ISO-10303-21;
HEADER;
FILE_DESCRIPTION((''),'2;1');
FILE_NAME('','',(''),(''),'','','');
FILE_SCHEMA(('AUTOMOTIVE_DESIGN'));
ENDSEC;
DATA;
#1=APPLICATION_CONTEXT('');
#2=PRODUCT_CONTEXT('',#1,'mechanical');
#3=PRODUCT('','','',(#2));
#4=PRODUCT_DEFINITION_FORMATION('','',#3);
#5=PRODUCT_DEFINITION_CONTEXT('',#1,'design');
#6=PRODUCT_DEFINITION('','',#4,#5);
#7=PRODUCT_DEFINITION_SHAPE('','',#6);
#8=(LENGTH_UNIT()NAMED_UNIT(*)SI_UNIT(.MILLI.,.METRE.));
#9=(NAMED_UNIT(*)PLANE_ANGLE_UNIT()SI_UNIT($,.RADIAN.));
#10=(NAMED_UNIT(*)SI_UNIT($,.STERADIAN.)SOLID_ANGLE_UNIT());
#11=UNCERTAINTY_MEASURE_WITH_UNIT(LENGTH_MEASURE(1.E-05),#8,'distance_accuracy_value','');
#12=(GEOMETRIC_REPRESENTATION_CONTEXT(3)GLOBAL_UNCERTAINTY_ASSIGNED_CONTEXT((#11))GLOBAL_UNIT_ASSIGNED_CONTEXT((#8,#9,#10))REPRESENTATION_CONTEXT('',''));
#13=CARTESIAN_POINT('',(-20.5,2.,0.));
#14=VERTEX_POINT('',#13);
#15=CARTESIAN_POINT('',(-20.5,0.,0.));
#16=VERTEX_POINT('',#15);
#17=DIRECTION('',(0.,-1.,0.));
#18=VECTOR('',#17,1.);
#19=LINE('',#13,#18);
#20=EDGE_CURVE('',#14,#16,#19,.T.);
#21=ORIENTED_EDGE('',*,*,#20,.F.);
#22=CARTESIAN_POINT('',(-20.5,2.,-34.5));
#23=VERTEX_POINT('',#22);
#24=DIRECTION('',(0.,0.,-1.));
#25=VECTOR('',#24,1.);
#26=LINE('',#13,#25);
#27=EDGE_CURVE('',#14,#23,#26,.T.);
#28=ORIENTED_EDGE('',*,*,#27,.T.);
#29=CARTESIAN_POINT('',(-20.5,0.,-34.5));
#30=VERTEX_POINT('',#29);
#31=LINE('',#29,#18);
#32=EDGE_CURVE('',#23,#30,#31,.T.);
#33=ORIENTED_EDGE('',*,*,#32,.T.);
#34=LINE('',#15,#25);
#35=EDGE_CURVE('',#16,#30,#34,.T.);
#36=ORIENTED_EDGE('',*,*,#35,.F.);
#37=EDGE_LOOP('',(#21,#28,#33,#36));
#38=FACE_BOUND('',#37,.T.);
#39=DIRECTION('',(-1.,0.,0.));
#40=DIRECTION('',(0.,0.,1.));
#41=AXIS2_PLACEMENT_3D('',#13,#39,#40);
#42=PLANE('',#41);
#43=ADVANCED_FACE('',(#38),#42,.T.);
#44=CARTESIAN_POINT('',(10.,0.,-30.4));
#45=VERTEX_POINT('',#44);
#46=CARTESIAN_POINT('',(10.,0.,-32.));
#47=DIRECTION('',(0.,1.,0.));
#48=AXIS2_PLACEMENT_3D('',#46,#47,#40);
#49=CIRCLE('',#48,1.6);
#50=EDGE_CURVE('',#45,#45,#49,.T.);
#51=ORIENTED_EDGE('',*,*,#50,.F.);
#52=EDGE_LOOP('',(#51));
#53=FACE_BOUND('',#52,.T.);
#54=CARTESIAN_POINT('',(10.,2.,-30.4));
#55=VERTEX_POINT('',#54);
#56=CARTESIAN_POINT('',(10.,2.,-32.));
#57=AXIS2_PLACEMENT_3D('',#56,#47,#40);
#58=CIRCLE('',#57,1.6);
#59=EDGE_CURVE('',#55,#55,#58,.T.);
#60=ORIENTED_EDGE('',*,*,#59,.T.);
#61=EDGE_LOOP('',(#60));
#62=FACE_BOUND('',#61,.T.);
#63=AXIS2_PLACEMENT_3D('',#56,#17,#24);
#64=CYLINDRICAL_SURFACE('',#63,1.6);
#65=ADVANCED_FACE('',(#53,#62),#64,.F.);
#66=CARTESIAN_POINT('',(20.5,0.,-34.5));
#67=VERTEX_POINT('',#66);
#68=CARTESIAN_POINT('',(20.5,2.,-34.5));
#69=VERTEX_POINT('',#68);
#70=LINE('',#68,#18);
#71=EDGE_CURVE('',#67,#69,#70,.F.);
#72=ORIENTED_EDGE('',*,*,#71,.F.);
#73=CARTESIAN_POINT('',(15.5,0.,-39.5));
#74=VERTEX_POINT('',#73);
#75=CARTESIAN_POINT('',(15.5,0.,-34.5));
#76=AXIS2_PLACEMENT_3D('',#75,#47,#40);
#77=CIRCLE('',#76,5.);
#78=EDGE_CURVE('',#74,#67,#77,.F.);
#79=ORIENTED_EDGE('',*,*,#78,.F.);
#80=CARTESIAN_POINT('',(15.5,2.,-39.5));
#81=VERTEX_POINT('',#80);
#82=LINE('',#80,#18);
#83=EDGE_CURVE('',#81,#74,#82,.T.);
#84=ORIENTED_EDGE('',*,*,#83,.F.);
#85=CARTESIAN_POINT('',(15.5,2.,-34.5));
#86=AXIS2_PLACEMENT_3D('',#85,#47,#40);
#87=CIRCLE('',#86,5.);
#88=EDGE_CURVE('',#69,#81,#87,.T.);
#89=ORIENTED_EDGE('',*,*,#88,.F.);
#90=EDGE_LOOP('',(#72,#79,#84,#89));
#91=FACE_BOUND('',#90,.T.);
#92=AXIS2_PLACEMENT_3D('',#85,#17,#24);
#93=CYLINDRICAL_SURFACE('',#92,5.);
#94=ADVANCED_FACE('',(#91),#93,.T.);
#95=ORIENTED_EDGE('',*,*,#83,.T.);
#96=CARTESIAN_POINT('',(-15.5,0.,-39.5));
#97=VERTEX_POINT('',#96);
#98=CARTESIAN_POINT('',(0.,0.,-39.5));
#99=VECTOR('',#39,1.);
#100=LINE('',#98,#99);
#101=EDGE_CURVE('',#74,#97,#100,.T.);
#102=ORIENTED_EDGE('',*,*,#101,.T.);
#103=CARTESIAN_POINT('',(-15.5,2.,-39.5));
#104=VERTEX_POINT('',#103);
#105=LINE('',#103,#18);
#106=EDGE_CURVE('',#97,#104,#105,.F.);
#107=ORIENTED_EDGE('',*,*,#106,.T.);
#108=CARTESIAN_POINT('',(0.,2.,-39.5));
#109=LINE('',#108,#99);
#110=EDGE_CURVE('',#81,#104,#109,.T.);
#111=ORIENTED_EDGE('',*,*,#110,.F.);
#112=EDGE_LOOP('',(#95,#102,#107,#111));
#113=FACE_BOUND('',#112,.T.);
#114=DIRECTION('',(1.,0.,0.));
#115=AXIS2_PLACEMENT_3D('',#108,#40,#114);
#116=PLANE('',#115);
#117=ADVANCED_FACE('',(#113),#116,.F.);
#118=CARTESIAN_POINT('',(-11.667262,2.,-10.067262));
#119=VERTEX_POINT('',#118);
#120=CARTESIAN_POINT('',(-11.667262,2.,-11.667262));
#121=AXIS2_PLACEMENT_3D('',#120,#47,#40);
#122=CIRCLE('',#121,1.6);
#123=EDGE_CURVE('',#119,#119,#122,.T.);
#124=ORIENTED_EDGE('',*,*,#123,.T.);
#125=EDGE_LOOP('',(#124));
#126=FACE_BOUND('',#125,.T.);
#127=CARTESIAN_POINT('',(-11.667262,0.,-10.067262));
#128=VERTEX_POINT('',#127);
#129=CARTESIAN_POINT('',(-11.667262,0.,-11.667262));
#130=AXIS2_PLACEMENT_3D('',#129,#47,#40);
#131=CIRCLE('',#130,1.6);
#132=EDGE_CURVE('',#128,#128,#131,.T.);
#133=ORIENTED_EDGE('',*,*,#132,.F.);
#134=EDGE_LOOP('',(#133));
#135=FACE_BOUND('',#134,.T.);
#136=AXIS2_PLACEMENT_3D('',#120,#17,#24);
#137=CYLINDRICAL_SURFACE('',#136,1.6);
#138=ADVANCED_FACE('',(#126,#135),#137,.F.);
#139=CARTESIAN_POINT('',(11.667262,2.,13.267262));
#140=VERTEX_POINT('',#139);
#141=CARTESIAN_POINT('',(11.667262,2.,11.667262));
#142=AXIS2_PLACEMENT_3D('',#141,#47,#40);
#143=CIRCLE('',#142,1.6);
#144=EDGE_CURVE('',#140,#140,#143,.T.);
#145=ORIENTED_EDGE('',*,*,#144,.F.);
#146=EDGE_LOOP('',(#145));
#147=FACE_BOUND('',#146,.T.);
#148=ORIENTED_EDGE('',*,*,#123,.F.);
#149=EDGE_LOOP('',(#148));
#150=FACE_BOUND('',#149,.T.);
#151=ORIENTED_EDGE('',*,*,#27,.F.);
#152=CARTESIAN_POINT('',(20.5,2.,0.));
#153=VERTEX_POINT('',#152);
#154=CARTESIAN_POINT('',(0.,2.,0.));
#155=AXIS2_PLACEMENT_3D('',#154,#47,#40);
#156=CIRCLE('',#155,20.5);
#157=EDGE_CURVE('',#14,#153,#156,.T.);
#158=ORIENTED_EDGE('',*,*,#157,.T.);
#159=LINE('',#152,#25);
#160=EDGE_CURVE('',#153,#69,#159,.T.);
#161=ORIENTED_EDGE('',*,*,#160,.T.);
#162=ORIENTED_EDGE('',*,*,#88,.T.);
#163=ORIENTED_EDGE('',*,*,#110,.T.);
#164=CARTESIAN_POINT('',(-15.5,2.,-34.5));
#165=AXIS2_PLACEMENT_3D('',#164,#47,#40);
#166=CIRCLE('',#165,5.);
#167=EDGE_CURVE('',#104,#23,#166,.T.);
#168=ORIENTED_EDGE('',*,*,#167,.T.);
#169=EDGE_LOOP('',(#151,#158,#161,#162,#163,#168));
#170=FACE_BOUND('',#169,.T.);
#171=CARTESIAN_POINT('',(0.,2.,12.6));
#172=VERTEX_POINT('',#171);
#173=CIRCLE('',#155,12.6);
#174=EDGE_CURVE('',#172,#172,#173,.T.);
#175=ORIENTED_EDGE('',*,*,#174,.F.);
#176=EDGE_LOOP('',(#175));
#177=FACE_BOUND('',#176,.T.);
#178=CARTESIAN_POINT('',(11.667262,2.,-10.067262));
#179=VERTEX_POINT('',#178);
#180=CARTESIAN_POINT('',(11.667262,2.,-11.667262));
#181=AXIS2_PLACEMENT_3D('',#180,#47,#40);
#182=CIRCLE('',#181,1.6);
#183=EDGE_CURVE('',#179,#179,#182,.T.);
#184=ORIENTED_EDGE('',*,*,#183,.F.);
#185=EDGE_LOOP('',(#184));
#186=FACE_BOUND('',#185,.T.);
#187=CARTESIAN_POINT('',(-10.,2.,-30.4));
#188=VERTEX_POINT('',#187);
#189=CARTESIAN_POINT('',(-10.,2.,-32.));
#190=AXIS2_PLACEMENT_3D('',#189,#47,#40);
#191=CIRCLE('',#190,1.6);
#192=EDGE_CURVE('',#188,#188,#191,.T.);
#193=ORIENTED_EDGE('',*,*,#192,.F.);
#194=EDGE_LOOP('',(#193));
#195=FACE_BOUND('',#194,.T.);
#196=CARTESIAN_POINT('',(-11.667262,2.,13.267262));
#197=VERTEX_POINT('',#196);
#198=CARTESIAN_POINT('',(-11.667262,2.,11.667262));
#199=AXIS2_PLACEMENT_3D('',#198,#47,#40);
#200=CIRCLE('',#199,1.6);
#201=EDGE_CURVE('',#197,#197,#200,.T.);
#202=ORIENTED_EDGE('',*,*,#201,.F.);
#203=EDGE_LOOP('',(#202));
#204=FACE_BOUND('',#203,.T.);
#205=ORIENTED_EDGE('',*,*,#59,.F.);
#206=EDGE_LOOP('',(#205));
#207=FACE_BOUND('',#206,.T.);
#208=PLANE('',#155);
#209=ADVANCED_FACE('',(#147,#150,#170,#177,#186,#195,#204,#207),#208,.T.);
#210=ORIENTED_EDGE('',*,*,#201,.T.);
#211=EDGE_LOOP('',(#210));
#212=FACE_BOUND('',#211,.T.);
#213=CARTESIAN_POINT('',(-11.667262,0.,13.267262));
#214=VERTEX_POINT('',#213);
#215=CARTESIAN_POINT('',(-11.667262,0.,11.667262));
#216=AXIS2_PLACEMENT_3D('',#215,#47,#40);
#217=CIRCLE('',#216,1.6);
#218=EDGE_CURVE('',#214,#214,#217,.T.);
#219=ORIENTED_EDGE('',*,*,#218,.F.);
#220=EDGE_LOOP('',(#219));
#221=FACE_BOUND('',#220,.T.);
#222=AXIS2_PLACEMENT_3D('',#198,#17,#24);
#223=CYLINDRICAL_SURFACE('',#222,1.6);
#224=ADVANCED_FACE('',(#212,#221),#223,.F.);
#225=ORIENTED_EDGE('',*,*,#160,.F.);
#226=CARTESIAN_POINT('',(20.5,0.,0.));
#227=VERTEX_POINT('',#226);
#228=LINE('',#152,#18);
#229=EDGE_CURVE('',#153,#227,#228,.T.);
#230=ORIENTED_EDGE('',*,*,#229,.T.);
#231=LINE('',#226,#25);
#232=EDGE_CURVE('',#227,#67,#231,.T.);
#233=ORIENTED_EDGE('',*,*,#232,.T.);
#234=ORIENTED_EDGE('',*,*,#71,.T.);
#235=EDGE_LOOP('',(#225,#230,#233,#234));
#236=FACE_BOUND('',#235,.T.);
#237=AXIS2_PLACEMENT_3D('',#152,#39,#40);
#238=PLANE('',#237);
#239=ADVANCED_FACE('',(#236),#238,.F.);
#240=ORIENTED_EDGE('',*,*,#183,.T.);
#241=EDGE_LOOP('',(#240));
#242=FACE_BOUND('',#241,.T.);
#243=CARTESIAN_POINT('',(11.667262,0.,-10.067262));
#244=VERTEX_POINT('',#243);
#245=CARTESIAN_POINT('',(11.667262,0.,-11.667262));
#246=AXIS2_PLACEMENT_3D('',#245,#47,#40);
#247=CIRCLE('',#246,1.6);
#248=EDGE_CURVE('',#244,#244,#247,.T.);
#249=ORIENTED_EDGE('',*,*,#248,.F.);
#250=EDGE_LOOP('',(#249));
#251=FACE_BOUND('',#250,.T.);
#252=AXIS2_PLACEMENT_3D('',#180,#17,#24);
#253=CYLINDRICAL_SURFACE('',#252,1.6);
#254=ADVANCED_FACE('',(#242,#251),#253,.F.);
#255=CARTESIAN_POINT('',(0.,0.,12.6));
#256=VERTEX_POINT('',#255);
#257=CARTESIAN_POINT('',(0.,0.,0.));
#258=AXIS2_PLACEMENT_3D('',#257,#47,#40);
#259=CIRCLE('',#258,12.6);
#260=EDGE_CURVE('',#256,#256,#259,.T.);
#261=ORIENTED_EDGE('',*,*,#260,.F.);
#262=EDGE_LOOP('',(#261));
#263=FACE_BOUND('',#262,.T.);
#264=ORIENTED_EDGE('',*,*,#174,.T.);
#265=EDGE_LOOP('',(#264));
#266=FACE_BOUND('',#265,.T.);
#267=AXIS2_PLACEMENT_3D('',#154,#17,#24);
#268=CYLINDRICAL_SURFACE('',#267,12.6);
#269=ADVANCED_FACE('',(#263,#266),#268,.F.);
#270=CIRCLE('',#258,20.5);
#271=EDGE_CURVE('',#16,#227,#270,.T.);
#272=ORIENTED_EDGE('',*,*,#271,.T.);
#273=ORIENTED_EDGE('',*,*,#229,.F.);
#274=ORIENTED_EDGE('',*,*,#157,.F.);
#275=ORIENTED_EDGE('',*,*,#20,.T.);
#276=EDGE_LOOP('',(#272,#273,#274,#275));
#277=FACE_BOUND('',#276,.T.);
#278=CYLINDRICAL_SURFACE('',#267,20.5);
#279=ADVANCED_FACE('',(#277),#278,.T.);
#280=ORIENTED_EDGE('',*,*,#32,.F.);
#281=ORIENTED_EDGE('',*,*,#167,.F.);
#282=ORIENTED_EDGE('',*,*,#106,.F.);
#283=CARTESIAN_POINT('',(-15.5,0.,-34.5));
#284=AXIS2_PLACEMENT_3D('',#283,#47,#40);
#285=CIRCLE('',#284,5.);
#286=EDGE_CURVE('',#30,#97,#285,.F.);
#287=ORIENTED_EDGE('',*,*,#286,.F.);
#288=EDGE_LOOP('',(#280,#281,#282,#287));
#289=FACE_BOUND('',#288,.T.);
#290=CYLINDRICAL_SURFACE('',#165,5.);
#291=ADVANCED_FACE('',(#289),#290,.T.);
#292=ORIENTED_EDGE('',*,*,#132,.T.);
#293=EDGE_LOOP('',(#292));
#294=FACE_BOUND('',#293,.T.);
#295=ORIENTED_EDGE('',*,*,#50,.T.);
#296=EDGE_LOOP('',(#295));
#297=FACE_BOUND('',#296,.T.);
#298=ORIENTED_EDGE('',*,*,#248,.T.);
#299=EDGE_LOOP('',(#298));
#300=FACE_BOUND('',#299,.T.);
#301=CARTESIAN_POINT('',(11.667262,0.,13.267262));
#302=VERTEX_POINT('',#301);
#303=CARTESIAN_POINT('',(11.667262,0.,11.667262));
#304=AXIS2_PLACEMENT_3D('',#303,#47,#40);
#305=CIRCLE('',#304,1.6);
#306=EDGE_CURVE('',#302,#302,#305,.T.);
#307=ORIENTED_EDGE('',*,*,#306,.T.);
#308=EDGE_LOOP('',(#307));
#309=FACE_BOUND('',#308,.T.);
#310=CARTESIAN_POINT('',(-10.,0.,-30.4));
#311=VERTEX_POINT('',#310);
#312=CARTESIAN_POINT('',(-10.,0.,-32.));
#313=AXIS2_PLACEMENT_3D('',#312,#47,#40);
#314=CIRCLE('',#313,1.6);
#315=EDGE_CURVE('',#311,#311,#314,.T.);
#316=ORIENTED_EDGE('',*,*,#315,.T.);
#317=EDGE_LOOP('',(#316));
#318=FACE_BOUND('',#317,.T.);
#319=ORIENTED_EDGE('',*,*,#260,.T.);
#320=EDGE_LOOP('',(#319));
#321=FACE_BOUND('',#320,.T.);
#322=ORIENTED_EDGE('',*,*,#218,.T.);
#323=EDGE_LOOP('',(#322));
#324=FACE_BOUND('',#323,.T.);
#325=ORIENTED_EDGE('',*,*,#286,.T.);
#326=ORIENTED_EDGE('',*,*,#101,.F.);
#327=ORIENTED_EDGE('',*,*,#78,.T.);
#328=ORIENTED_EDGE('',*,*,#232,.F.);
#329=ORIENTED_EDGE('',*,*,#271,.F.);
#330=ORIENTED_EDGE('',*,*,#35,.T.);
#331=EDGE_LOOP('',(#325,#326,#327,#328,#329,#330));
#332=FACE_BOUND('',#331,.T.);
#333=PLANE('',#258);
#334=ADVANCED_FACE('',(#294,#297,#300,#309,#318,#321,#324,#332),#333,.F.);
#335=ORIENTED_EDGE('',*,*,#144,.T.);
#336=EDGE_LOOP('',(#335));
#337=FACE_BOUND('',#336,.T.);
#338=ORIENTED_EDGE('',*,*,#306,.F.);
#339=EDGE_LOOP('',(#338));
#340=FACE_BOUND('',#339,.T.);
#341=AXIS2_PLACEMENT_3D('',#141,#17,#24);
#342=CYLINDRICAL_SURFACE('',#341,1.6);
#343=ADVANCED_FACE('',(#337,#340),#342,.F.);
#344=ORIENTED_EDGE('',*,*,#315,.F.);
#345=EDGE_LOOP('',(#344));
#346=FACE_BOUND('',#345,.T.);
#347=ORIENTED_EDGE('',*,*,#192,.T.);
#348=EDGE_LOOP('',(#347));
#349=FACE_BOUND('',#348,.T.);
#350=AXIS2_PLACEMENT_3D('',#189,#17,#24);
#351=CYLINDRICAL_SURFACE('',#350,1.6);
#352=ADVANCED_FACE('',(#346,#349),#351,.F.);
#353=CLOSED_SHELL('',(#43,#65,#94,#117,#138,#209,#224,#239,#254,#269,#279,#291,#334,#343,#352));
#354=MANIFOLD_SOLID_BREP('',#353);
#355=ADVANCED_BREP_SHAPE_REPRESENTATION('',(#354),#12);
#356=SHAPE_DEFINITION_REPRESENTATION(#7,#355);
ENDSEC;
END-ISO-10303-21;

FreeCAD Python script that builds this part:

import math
import FreeCAD as App
import Part
import Sketcher
from FreeCAD import Vector
Q = App.Units.Quantity


def edges_at(feature, points):
    """Names of the edges that pass closest to the given points."""
    edges = feature.Shape.Edges
    near = lambda p: min(range(len(edges)), key=lambda i: edges[i].distToShape(Part.Vertex(*p))[0])
    return sorted({f"Edge{near(p) + 1}" for p in points})

doc = App.newDocument("Part")
body = doc.addObject("PartDesign::Body", "Body")

# Sketch on XZ plane
sketch1 = body.newObject("Sketcher::SketchObject", "Sketch")
sketch1.AttachmentSupport = (doc.getObject("XZ_Plane"), [""])
sketch1.MapMode = "FlatFace"
sketch1.addGeometry([
    Part.LineSegment(Vector(-20.5, -39.5, 0), Vector(-20.5, 0, 0)),  # 0
    Part.ArcOfCircle(Part.Circle(Vector(0, 0, 0), Vector(0, 0, 1), 20.5), math.radians(0), math.radians(180)),  # 1
    Part.LineSegment(Vector(20.5, 0, 0), Vector(20.5, -39.5, 0)),  # 2
    Part.LineSegment(Vector(20.5, -39.5, 0), Vector(-20.5, -39.5, 0)),  # 3
    Part.Circle(Vector(-10, -32, 0), Vector(0, 0, 1), 1.6),  # 4
    Part.Circle(Vector(10, -32, 0), Vector(0, 0, 1), 1.6),  # 5
    Part.Circle(Vector(11.667262, -11.667262, 0), Vector(0, 0, 1), 1.6),  # 6
    Part.Circle(Vector(-11.667262, 11.667262, 0), Vector(0, 0, 1), 1.6),  # 7
    Part.Circle(Vector(11.667262, 11.667262, 0), Vector(0, 0, 1), 1.6),  # 8
    Part.Circle(Vector(-11.667262, -11.667262, 0), Vector(0, 0, 1), 1.6),  # 9
    Part.Circle(Vector(0, 0, 0), Vector(0, 0, 1), 12.6),  # 10
], False)
sketch1.addConstraint([
    Sketcher.Constraint("Tangent", 0, 2, 1, 2),
    Sketcher.Constraint("Tangent", 1, 1, 2, 1),
    Sketcher.Constraint("Coincident", 2, 2, 3, 1),
    Sketcher.Constraint("Coincident", 3, 2, 0, 1),
    Sketcher.Constraint("Vertical", 0),
    Sketcher.Constraint("Vertical", 2),
    Sketcher.Constraint("Horizontal", 3),
    Sketcher.Constraint("Coincident", 1, 3, -1, 1),
    Sketcher.Constraint("Coincident", 10, 3, -1, 1),
    Sketcher.Constraint("Equal", 4, 5),
    Sketcher.Constraint("Equal", 5, 6),
    Sketcher.Constraint("Equal", 6, 7),
    Sketcher.Constraint("Equal", 7, 8),
    Sketcher.Constraint("Equal", 8, 9),
    Sketcher.Constraint("Symmetric", 6, 3, 7, 3, -1, 1),
    Sketcher.Constraint("Symmetric", 8, 3, 9, 3, -1, 1),
    Sketcher.Constraint("Symmetric", 4, 3, 5, 3, -2),
    Sketcher.Constraint("Symmetric", 7, 3, 8, 3, -2),
    Sketcher.Constraint("Diameter", 4, Q("3.2 mm")),
    Sketcher.Constraint("Diameter", 10, Q("25.2 mm")),
    Sketcher.Constraint("Radius", 1, Q("20.5 mm")),
    Sketcher.Constraint("DistanceY", 0, 1, 0, 2, Q("39.5 mm")),
    Sketcher.Constraint("DistanceX", 4, 3, -1, 1, Q("10 mm")),
    Sketcher.Constraint("DistanceY", 4, 3, -1, 1, Q("32 mm")),
    Sketcher.Constraint("DistanceX", -1, 1, 6, 3, Q("11.667262 mm")),
    Sketcher.Constraint("DistanceY", 6, 3, -1, 1, Q("11.667262 mm")),
])
pad1 = body.newObject("PartDesign::Pad", "Pad")
pad1.Profile = sketch1
pad1.Length = 2
pad1.Reversed = True
doc.recompute()

fillet = body.newObject("PartDesign::Fillet", "Fillet")
fillet.Base = (pad1, edges_at(pad1, [(-20.5, 1, -39.5), (20.5, 1, -39.5)]))
fillet.Radius = 5

doc.recompute()
